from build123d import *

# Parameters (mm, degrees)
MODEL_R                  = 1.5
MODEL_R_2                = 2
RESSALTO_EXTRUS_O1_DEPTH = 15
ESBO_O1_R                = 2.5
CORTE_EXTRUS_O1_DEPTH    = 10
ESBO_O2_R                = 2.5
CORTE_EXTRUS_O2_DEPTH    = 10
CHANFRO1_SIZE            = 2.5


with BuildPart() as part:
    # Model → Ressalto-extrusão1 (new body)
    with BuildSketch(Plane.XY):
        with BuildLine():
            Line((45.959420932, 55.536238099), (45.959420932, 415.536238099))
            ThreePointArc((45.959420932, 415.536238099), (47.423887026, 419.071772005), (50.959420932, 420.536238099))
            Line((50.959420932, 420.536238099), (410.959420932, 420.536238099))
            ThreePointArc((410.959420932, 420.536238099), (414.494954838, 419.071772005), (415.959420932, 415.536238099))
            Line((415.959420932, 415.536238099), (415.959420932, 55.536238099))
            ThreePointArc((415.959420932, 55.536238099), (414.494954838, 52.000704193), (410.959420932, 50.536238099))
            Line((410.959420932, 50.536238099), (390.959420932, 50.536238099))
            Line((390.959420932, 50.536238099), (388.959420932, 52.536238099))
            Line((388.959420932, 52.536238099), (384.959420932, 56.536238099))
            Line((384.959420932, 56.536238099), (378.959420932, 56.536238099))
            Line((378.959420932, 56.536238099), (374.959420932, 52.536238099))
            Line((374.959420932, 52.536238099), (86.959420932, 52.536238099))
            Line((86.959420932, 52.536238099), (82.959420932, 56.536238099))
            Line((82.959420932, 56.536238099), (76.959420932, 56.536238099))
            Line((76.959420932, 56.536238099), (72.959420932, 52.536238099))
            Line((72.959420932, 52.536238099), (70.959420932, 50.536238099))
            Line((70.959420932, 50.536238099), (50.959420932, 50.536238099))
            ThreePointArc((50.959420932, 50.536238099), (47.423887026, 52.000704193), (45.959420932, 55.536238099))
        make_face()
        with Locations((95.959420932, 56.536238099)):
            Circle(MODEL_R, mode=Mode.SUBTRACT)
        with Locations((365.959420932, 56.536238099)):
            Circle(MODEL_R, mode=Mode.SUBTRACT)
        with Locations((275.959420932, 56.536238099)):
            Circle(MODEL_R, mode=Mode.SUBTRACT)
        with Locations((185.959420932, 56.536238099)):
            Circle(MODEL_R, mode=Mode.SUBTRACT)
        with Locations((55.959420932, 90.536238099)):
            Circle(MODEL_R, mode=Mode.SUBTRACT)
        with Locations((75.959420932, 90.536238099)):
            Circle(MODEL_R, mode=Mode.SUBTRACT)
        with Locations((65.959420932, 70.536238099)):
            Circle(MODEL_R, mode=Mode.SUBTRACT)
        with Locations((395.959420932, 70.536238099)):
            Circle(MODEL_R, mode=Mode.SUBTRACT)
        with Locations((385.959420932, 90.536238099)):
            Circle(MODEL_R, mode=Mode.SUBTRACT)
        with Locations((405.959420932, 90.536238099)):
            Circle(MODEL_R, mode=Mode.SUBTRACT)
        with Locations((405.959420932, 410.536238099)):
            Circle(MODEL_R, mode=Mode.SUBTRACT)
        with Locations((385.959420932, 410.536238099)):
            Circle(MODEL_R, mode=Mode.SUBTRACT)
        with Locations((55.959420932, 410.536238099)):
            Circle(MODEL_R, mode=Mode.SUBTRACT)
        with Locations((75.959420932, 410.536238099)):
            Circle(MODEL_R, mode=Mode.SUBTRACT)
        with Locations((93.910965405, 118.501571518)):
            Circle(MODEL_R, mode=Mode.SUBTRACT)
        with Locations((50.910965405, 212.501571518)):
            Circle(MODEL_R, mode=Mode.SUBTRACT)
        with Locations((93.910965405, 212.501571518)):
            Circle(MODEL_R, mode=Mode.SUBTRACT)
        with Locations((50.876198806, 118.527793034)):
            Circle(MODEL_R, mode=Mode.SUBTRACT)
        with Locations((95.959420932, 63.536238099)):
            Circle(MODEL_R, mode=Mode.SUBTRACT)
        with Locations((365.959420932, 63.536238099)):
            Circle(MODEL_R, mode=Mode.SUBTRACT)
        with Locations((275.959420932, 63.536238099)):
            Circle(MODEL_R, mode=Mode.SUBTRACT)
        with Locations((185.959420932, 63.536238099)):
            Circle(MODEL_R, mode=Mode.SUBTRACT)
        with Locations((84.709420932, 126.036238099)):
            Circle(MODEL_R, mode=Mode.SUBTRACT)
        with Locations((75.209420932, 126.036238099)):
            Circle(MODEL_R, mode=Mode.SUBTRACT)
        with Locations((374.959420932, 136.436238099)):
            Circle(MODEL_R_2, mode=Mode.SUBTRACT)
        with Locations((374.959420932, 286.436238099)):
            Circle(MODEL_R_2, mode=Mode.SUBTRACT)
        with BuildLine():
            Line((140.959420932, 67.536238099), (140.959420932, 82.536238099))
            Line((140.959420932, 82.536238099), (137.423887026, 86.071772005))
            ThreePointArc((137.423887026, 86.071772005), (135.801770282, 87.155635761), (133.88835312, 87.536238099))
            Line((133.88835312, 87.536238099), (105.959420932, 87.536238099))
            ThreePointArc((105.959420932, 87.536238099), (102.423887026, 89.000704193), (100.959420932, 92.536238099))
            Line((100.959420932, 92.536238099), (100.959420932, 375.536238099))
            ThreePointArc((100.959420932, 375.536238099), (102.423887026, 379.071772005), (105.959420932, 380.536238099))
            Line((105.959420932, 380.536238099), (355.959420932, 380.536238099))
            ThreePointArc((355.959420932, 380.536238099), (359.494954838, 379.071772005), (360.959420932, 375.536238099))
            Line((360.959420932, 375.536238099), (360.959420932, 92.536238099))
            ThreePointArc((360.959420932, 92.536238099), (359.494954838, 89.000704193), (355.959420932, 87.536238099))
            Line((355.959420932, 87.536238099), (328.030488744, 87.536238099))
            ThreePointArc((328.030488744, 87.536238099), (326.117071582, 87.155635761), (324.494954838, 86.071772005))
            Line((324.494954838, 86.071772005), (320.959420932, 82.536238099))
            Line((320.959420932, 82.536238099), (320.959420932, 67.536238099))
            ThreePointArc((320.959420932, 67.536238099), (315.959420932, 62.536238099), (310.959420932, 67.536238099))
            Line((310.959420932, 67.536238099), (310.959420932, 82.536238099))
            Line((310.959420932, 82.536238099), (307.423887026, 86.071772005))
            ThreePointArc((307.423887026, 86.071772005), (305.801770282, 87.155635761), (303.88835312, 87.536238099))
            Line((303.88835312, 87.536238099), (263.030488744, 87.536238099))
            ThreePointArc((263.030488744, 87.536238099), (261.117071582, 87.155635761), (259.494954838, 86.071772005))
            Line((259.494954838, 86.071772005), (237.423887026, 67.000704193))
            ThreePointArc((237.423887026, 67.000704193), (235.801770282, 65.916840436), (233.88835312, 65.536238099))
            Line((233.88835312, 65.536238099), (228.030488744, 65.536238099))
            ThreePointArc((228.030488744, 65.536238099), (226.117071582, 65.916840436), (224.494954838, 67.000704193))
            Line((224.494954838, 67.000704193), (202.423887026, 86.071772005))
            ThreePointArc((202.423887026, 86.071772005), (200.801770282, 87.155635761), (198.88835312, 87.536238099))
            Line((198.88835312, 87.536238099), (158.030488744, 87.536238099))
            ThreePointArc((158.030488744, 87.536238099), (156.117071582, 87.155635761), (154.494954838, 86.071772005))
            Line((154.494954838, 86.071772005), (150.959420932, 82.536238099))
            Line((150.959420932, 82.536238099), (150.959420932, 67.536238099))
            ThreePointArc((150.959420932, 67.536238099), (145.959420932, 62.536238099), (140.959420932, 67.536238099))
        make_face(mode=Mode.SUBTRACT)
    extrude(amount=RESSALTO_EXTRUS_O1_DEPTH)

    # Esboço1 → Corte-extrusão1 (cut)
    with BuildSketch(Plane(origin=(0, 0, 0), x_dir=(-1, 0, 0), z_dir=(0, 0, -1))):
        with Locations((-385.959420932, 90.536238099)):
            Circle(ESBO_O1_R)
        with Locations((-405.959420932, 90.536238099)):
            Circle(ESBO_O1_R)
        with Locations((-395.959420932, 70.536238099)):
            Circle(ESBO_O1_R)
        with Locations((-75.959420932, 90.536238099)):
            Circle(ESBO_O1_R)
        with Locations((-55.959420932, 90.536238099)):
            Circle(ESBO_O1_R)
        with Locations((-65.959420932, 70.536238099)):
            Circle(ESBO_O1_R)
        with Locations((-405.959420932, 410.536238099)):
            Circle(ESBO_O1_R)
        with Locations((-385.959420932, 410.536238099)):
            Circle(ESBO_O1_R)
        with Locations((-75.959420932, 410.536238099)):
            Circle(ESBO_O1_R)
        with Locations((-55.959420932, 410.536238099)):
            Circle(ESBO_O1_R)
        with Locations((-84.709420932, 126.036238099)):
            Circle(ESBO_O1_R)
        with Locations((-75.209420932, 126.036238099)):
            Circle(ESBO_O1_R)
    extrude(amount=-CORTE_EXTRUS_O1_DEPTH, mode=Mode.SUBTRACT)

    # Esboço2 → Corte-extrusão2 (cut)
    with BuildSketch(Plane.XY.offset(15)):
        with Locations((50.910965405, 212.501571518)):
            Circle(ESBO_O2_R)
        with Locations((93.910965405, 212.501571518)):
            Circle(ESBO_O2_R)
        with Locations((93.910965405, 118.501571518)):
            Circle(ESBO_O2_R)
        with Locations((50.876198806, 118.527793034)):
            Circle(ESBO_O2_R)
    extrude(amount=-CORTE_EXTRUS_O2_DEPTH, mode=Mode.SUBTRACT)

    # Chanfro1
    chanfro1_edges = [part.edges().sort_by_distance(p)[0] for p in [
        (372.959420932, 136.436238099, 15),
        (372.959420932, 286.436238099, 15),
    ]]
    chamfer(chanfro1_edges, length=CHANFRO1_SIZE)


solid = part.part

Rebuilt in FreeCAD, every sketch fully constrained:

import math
import FreeCAD as App
import Part
import Sketcher
from FreeCAD import Vector


def edges_at(feature, points):
    """Names of the edges that pass closest to the given points."""
    edges = feature.Shape.Edges
    near = lambda p: min(range(len(edges)), key=lambda i: edges[i].distToShape(Part.Vertex(*p))[0])
    return sorted({f"Edge{near(p) + 1}" for p in points})

doc = App.newDocument("Part")
body = doc.addObject("PartDesign::Body", "Body")

sketch1 = body.newObject("Sketcher::SketchObject", "Sketch")
sketch1.AttachmentSupport = (doc.getObject("XY_Plane"), [""])
sketch1.MapMode = "FlatFace"
sketch1.addGeometry(Part.LineSegment(Vector(45.959421, 415.536238, 0), Vector(45.959421, 55.536238, 0)), False)
sketch1.addGeometry(Part.ArcOfCircle(Part.Circle(Vector(50.959421, 55.536238, 0), Vector(0, 0, 1), 5), math.radians(180), math.radians(270)), False)
sketch1.addGeometry(Part.LineSegment(Vector(50.959421, 50.536238, 0), Vector(70.959421, 50.536238, 0)), False)
sketch1.addGeometry(Part.LineSegment(Vector(70.959421, 50.536238, 0), Vector(76.959421, 56.536238, 0)), False)
sketch1.addGeometry(Part.LineSegment(Vector(76.959421, 56.536238, 0), Vector(82.959421, 56.536238, 0)), False)
sketch1.addGeometry(Part.LineSegment(Vector(82.959421, 56.536238, 0), Vector(86.959421, 52.536238, 0)), False)
sketch1.addGeometry(Part.LineSegment(Vector(86.959421, 52.536238, 0), Vector(374.959421, 52.536238, 0)), False)
sketch1.addGeometry(Part.LineSegment(Vector(374.959421, 52.536238, 0), Vector(378.959421, 56.536238, 0)), False)
sketch1.addGeometry(Part.LineSegment(Vector(378.959421, 56.536238, 0), Vector(384.959421, 56.536238, 0)), False)
sketch1.addGeometry(Part.LineSegment(Vector(384.959421, 56.536238, 0), Vector(390.959421, 50.536238, 0)), False)
sketch1.addGeometry(Part.LineSegment(Vector(390.959421, 50.536238, 0), Vector(410.959421, 50.536238, 0)), False)
sketch1.addGeometry(Part.ArcOfCircle(Part.Circle(Vector(410.959421, 55.536238, 0), Vector(0, 0, 1), 5), math.radians(-90), math.radians(0)), False)
sketch1.addGeometry(Part.LineSegment(Vector(415.959421, 55.536238, 0), Vector(415.959421, 415.536238, 0)), False)
sketch1.addGeometry(Part.ArcOfCircle(Part.Circle(Vector(410.959421, 415.536238, 0), Vector(0, 0, 1), 5), math.radians(0), math.radians(90)), False)
sketch1.addGeometry(Part.LineSegment(Vector(410.959421, 420.536238, 0), Vector(50.959421, 420.536238, 0)), False)
sketch1.addGeometry(Part.ArcOfCircle(Part.Circle(Vector(50.959421, 415.536238, 0), Vector(0, 0, 1), 5), math.radians(90), math.radians(180)), False)
sketch1.addGeometry(Part.Circle(Vector(395.959421, 70.536238, 0), Vector(0, 0, 1), 1.5), False)
sketch1.addGeometry(Part.Circle(Vector(365.959421, 56.536238, 0), Vector(0, 0, 1), 1.5), False)
sketch1.addGeometry(Part.Circle(Vector(365.959421, 63.536238, 0), Vector(0, 0, 1), 1.5), False)
sketch1.addGeometry(Part.Circle(Vector(405.959421, 90.536238, 0), Vector(0, 0, 1), 1.5), False)
sketch1.addGeometry(Part.Circle(Vector(385.959421, 90.536238, 0), Vector(0, 0, 1), 1.5), False)
sketch1.addGeometry(Part.Circle(Vector(374.959421, 136.436238, 0), Vector(0, 0, 1), 2), False)
sketch1.addGeometry(Part.Circle(Vector(275.959421, 56.536238, 0), Vector(0, 0, 1), 1.5), False)
sketch1.addGeometry(Part.Circle(Vector(275.959421, 63.536238, 0), Vector(0, 0, 1), 1.5), False)
sketch1.addGeometry(Part.LineSegment(Vector(140.959421, 67.536238, 0), Vector(140.959421, 82.536238, 0)), False)
sketch1.addGeometry(Part.LineSegment(Vector(140.959421, 82.536238, 0), Vector(137.423887, 86.071772, 0)), False)
sketch1.addGeometry(Part.ArcOfCircle(Part.Circle(Vector(133.888353, 82.536238, 0), Vector(0, 0, 1), 5), math.radians(45), math.radians(90)), False)
sketch1.addGeometry(Part.LineSegment(Vector(133.888353, 87.536238, 0), Vector(105.959421, 87.536238, 0)), False)
sketch1.addGeometry(Part.ArcOfCircle(Part.Circle(Vector(105.959421, 92.536238, 0), Vector(0, 0, 1), 5), math.radians(180), math.radians(270)), False)
sketch1.addGeometry(Part.LineSegment(Vector(100.959421, 92.536238, 0), Vector(100.959421, 375.536238, 0)), False)
sketch1.addGeometry(Part.ArcOfCircle(Part.Circle(Vector(105.959421, 375.536238, 0), Vector(0, 0, 1), 5), math.radians(90), math.radians(180)), False)
sketch1.addGeometry(Part.LineSegment(Vector(105.959421, 380.536238, 0), Vector(355.959421, 380.536238, 0)), False)
sketch1.addGeometry(Part.ArcOfCircle(Part.Circle(Vector(355.959421, 375.536238, 0), Vector(0, 0, 1), 5), math.radians(0), math.radians(90)), False)
sketch1.addGeometry(Part.LineSegment(Vector(360.959421, 375.536238, 0), Vector(360.959421, 92.536238, 0)), False)
sketch1.addGeometry(Part.ArcOfCircle(Part.Circle(Vector(355.959421, 92.536238, 0), Vector(0, 0, 1), 5), math.radians(-90), math.radians(0)), False)
sketch1.addGeometry(Part.LineSegment(Vector(355.959421, 87.536238, 0), Vector(328.030489, 87.536238, 0)), False)
sketch1.addGeometry(Part.ArcOfCircle(Part.Circle(Vector(328.030489, 82.536238, 0), Vector(0, 0, 1), 5), math.radians(90), math.radians(135)), False)
sketch1.addGeometry(Part.LineSegment(Vector(324.494955, 86.071772, 0), Vector(320.959421, 82.536238, 0)), False)
sketch1.addGeometry(Part.LineSegment(Vector(320.959421, 82.536238, 0), Vector(320.959421, 67.536238, 0)), False)
sketch1.addGeometry(Part.ArcOfCircle(Part.Circle(Vector(315.959421, 67.536238, 0), Vector(0, 0, 1), 5), math.radians(180), math.radians(360)), False)
sketch1.addGeometry(Part.LineSegment(Vector(310.959421, 67.536238, 0), Vector(310.959421, 82.536238, 0)), False)
sketch1.addGeometry(Part.LineSegment(Vector(310.959421, 82.536238, 0), Vector(307.423887, 86.071772, 0)), False)
sketch1.addGeometry(Part.ArcOfCircle(Part.Circle(Vector(303.888353, 82.536238, 0), Vector(0, 0, 1), 5), math.radians(45), math.radians(90)), False)
sketch1.addGeometry(Part.LineSegment(Vector(303.888353, 87.536238, 0), Vector(263.030489, 87.536238, 0)), False)
sketch1.addGeometry(Part.ArcOfCircle(Part.Circle(Vector(263.030489, 82.536238, 0), Vector(0, 0, 1), 5), math.radians(90), math.radians(135)), False)
sketch1.addGeometry(Part.LineSegment(Vector(259.494955, 86.071772, 0), Vector(237.423887, 67.000704, 0)), False)
sketch1.addGeometry(Part.ArcOfCircle(Part.Circle(Vector(233.888353, 70.536238, 0), Vector(0, 0, 1), 5), math.radians(-90), math.radians(-45)), False)
sketch1.addGeometry(Part.LineSegment(Vector(233.888353, 65.536238, 0), Vector(228.030489, 65.536238, 0)), False)
sketch1.addGeometry(Part.ArcOfCircle(Part.Circle(Vector(228.030489, 70.536238, 0), Vector(0, 0, 1), 5), math.radians(-135), math.radians(-90)), False)
sketch1.addGeometry(Part.LineSegment(Vector(224.494955, 67.000704, 0), Vector(202.423887, 86.071772, 0)), False)
sketch1.addGeometry(Part.ArcOfCircle(Part.Circle(Vector(198.888353, 82.536238, 0), Vector(0, 0, 1), 5), math.radians(45), math.radians(90)), False)
sketch1.addGeometry(Part.LineSegment(Vector(198.888353, 87.536238, 0), Vector(158.030489, 87.536238, 0)), False)
sketch1.addGeometry(Part.ArcOfCircle(Part.Circle(Vector(158.030489, 82.536238, 0), Vector(0, 0, 1), 5), math.radians(90), math.radians(135)), False)
sketch1.addGeometry(Part.LineSegment(Vector(154.494955, 86.071772, 0), Vector(150.959421, 82.536238, 0)), False)
sketch1.addGeometry(Part.LineSegment(Vector(150.959421, 82.536238, 0), Vector(150.959421, 67.536238, 0)), False)
sketch1.addGeometry(Part.ArcOfCircle(Part.Circle(Vector(145.959421, 67.536238, 0), Vector(0, 0, 1), 5), math.radians(180), math.radians(360)), False)
sketch1.addGeometry(Part.Circle(Vector(185.959421, 56.536238, 0), Vector(0, 0, 1), 1.5), False)
sketch1.addGeometry(Part.Circle(Vector(185.959421, 63.536238, 0), Vector(0, 0, 1), 1.5), False)
sketch1.addGeometry(Part.Circle(Vector(95.959421, 56.536238, 0), Vector(0, 0, 1), 1.5), False)
sketch1.addGeometry(Part.Circle(Vector(95.959421, 63.536238, 0), Vector(0, 0, 1), 1.5), False)
sketch1.addGeometry(Part.Circle(Vector(65.959421, 70.536238, 0), Vector(0, 0, 1), 1.5), False)
sketch1.addGeometry(Part.Circle(Vector(75.959421, 90.536238, 0), Vector(0, 0, 1), 1.5), False)
sketch1.addGeometry(Part.Circle(Vector(55.959421, 90.536238, 0), Vector(0, 0, 1), 1.5), False)
sketch1.addGeometry(Part.Circle(Vector(93.910965, 118.501572, 0), Vector(0, 0, 1), 1.5), False)
sketch1.addGeometry(Part.Circle(Vector(50.876199, 118.527793, 0), Vector(0, 0, 1), 1.5), False)
sketch1.addGeometry(Part.Circle(Vector(84.709421, 126.036238, 0), Vector(0, 0, 1), 1.5), False)
sketch1.addGeometry(Part.Circle(Vector(75.209421, 126.036238, 0), Vector(0, 0, 1), 1.5), False)
sketch1.addGeometry(Part.Circle(Vector(93.910965, 212.501572, 0), Vector(0, 0, 1), 1.5), False)
sketch1.addGeometry(Part.Circle(Vector(50.910965, 212.501572, 0), Vector(0, 0, 1), 1.5), False)
sketch1.addGeometry(Part.Circle(Vector(374.959421, 286.436238, 0), Vector(0, 0, 1), 2), False)
sketch1.addGeometry(Part.Circle(Vector(405.959421, 410.536238, 0), Vector(0, 0, 1), 1.5), False)
sketch1.addGeometry(Part.Circle(Vector(385.959421, 410.536238, 0), Vector(0, 0, 1), 1.5), False)
sketch1.addGeometry(Part.Circle(Vector(75.959421, 410.536238, 0), Vector(0, 0, 1), 1.5), False)
sketch1.addGeometry(Part.Circle(Vector(55.959421, 410.536238, 0), Vector(0, 0, 1), 1.5), False)
sketch1.addConstraint(Sketcher.Constraint("Tangent", 0, 2, 1, 1))
sketch1.addConstraint(Sketcher.Constraint("Tangent", 1, 2, 2, 1))
sketch1.addConstraint(Sketcher.Constraint("Coincident", 2, 2, 3, 1))
sketch1.addConstraint(Sketcher.Constraint("Coincident", 3, 2, 4, 1))
sketch1.addConstraint(Sketcher.Constraint("Coincident", 4, 2, 5, 1))
sketch1.addConstraint(Sketcher.Constraint("Coincident", 5, 2, 6, 1))
sketch1.addConstraint(Sketcher.Constraint("Coincident", 6, 2, 7, 1))
sketch1.addConstraint(Sketcher.Constraint("Coincident", 7, 2, 8, 1))
sketch1.addConstraint(Sketcher.Constraint("Coincident", 8, 2, 9, 1))
sketch1.addConstraint(Sketcher.Constraint("Coincident", 9, 2, 10, 1))
sketch1.addConstraint(Sketcher.Constraint("Tangent", 10, 2, 11, 1))
sketch1.addConstraint(Sketcher.Constraint("Tangent", 11, 2, 12, 1))
sketch1.addConstraint(Sketcher.Constraint("Tangent", 12, 2, 13, 1))
sketch1.addConstraint(Sketcher.Constraint("Tangent", 13, 2, 14, 1))
sketch1.addConstraint(Sketcher.Constraint("Tangent", 14, 2, 15, 1))
sketch1.addConstraint(Sketcher.Constraint("Tangent", 15, 2, 0, 1))
sketch1.addConstraint(Sketcher.Constraint("Coincident", 24, 2, 25, 1))
sketch1.addConstraint(Sketcher.Constraint("Tangent", 25, 2, 26, 1))
sketch1.addConstraint(Sketcher.Constraint("Tangent", 26, 2, 27, 1))
sketch1.addConstraint(Sketcher.Constraint("Tangent", 27, 2, 28, 2))
sketch1.addConstraint(Sketcher.Constraint("Tangent", 28, 1, 29, 1))
sketch1.addConstraint(Sketcher.Constraint("Tangent", 29, 2, 30, 2))
sketch1.addConstraint(Sketcher.Constraint("Tangent", 30, 1, 31, 1))
sketch1.addConstraint(Sketcher.Constraint("Tangent", 31, 2, 32, 2))
sketch1.addConstraint(Sketcher.Constraint("Tangent", 32, 1, 33, 1))
sketch1.addConstraint(Sketcher.Constraint("Tangent", 33, 2, 34, 2))
sketch1.addConstraint(Sketcher.Constraint("Tangent", 34, 1, 35, 1))
sketch1.addConstraint(Sketcher.Constraint("Tangent", 35, 2, 36, 1))
sketch1.addConstraint(Sketcher.Constraint("Tangent", 36, 2, 37, 1))
sketch1.addConstraint(Sketcher.Constraint("Coincident", 37, 2, 38, 1))
sketch1.addConstraint(Sketcher.Constraint("Tangent", 38, 2, 39, 2))
sketch1.addConstraint(Sketcher.Constraint("Tangent", 39, 1, 40, 1))
sketch1.addConstraint(Sketcher.Constraint("Coincident", 40, 2, 41, 1))
sketch1.addConstraint(Sketcher.Constraint("Tangent", 41, 2, 42, 1))
sketch1.addConstraint(Sketcher.Constraint("Tangent", 42, 2, 43, 1))
sketch1.addConstraint(Sketcher.Constraint("Tangent", 43, 2, 44, 1))
sketch1.addConstraint(Sketcher.Constraint("Coincident", 44, 2, 45, 1))
sketch1.addConstraint(Sketcher.Constraint("Coincident", 45, 2, 46, 2))
sketch1.addConstraint(Sketcher.Constraint("Tangent", 46, 1, 47, 1))
sketch1.addConstraint(Sketcher.Constraint("Tangent", 47, 2, 48, 2))
sketch1.addConstraint(Sketcher.Constraint("Coincident", 48, 1, 49, 1))
sketch1.addConstraint(Sketcher.Constraint("Coincident", 49, 2, 50, 1))
sketch1.addConstraint(Sketcher.Constraint("Tangent", 50, 2, 51, 1))
sketch1.addConstraint(Sketcher.Constraint("Tangent", 51, 2, 52, 1))
sketch1.addConstraint(Sketcher.Constraint("Tangent", 52, 2, 53, 1))
sketch1.addConstraint(Sketcher.Constraint("Coincident", 53, 2, 54, 1))
sketch1.addConstraint(Sketcher.Constraint("Tangent", 54, 2, 55, 2))
sketch1.addConstraint(Sketcher.Constraint("Tangent", 55, 1, 24, 1))
sketch1.addConstraint(Sketcher.Constraint("Vertical", 0))
sketch1.addConstraint(Sketcher.Constraint("Horizontal", 2))
sketch1.addConstraint(Sketcher.Constraint("Horizontal", 4))
sketch1.addConstraint(Sketcher.Constraint("Horizontal", 6))
sketch1.addConstraint(Sketcher.Constraint("Horizontal", 8))
sketch1.addConstraint(Sketcher.Constraint("Horizontal", 10))
sketch1.addConstraint(Sketcher.Constraint("Vertical", 12))
sketch1.addConstraint(Sketcher.Constraint("Horizontal", 14))
sketch1.addConstraint(Sketcher.Constraint("Vertical", 24))
sketch1.addConstraint(Sketcher.Constraint("Horizontal", 27))
sketch1.addConstraint(Sketcher.Constraint("Vertical", 29))
sketch1.addConstraint(Sketcher.Constraint("Horizontal", 31))
sketch1.addConstraint(Sketcher.Constraint("Vertical", 33))
sketch1.addConstraint(Sketcher.Constraint("Horizontal", 35))
sketch1.addConstraint(Sketcher.Constraint("Vertical", 38))
sketch1.addConstraint(Sketcher.Constraint("Vertical", 40))
sketch1.addConstraint(Sketcher.Constraint("Horizontal", 43))
sketch1.addConstraint(Sketcher.Constraint("Horizontal", 47))
sketch1.addConstraint(Sketcher.Constraint("Horizontal", 51))
sketch1.addConstraint(Sketcher.Constraint("Vertical", 54))
sketch1.addConstraint(Sketcher.Constraint("Equal", 1, 11))
sketch1.addConstraint(Sketcher.Constraint("Equal", 11, 13))
sketch1.addConstraint(Sketcher.Constraint("Equal", 13, 15))
sketch1.addConstraint(Sketcher.Constraint("Equal", 16, 17))
sketch1.addConstraint(Sketcher.Constraint("Equal", 17, 18))
sketch1.addConstraint(Sketcher.Constraint("Equal", 18, 19))
sketch1.addConstraint(Sketcher.Constraint("Equal", 19, 20))
sketch1.addConstraint(Sketcher.Constraint("Equal", 20, 22))
sketch1.addConstraint(Sketcher.Constraint("Equal", 22, 23))
sketch1.addConstraint(Sketcher.Constraint("Equal", 15, 26))
sketch1.addConstraint(Sketcher.Constraint("Equal", 26, 28))
sketch1.addConstraint(Sketcher.Constraint("Equal", 28, 30))
sketch1.addConstraint(Sketcher.Constraint("Equal", 30, 32))
sketch1.addConstraint(Sketcher.Constraint("Equal", 32, 34))
sketch1.addConstraint(Sketcher.Constraint("Equal", 34, 36))
sketch1.addConstraint(Sketcher.Constraint("Equal", 36, 39))
sketch1.addConstraint(Sketcher.Constraint("Equal", 39, 42))
sketch1.addConstraint(Sketcher.Constraint("Equal", 42, 44))
sketch1.addConstraint(Sketcher.Constraint("Equal", 44, 46))
sketch1.addConstraint(Sketcher.Constraint("Equal", 46, 48))
sketch1.addConstraint(Sketcher.Constraint("Equal", 48, 50))
sketch1.addConstraint(Sketcher.Constraint("Equal", 50, 52))
sketch1.addConstraint(Sketcher.Constraint("Equal", 52, 55))
sketch1.addConstraint(Sketcher.Constraint("Equal", 23, 56))
sketch1.addConstraint(Sketcher.Constraint("Equal", 56, 57))
sketch1.addConstraint(Sketcher.Constraint("Equal", 57, 58))
sketch1.addConstraint(Sketcher.Constraint("Equal", 58, 59))
sketch1.addConstraint(Sketcher.Constraint("Equal", 59, 60))
sketch1.addConstraint(Sketcher.Constraint("Equal", 60, 61))
sketch1.addConstraint(Sketcher.Constraint("Equal", 61, 62))
sketch1.addConstraint(Sketcher.Constraint("Equal", 62, 63))
sketch1.addConstraint(Sketcher.Constraint("Equal", 63, 64))
sketch1.addConstraint(Sketcher.Constraint("Equal", 64, 65))
sketch1.addConstraint(Sketcher.Constraint("Equal", 65, 66))
sketch1.addConstraint(Sketcher.Constraint("Equal", 66, 67))
sketch1.addConstraint(Sketcher.Constraint("Equal", 67, 68))
sketch1.addConstraint(Sketcher.Constraint("Equal", 21, 69))
sketch1.addConstraint(Sketcher.Constraint("Equal", 68, 70))
sketch1.addConstraint(Sketcher.Constraint("Equal", 70, 71))
sketch1.addConstraint(Sketcher.Constraint("Equal", 71, 72))
sketch1.addConstraint(Sketcher.Constraint("Equal", 72, 73))
sketch1.addConstraint(Sketcher.Constraint("Perpendicular", 3, 5))
sketch1.addConstraint(Sketcher.Constraint("Perpendicular", 5, 7))
sketch1.addConstraint(Sketcher.Constraint("Perpendicular", 7, 9))
sketch1.addConstraint(Sketcher.Constraint("Parallel", 9, 25))
sketch1.addConstraint(Sketcher.Constraint("Perpendicular", 25, 37))
sketch1.addConstraint(Sketcher.Constraint("Perpendicular", 37, 41))
sketch1.addConstraint(Sketcher.Constraint("Perpendicular", 41, 53))
sketch1.addConstraint(Sketcher.Constraint("Horizontal", 1, 3, 11, 3))
sketch1.addConstraint(Sketcher.Constraint("Horizontal", 19, 3, 20, 3))
sketch1.addConstraint(Sketcher.Constraint("Horizontal", 17, 3, 22, 3))
sketch1.addConstraint(Sketcher.Constraint("Horizontal", 18, 3, 23, 3))
sketch1.addConstraint(Sketcher.Constraint("Horizontal", 28, 3, 34, 3))
sketch1.addConstraint(Sketcher.Constraint("Horizontal", 36, 3, 42, 3))
sketch1.addConstraint(Sketcher.Constraint("Horizontal", 16, 3, 46, 3))
sketch1.addConstraint(Sketcher.Constraint("Horizontal", 44, 3, 50, 3))
sketch1.addConstraint(Sketcher.Constraint("Horizontal", 39, 3, 55, 3))
sketch1.addConstraint(Sketcher.Constraint("Horizontal", 22, 3, 56, 3))
sketch1.addConstraint(Sketcher.Constraint("Horizontal", 23, 3, 57, 3))
sketch1.addConstraint(Sketcher.Constraint("Horizontal", 56, 3, 58, 3))
sketch1.addConstraint(Sketcher.Constraint("Horizontal", 57, 3, 59, 3))
sketch1.addConstraint(Sketcher.Constraint("Horizontal", 48, 3, 60, 3))
sketch1.addConstraint(Sketcher.Constraint("Horizontal", 20, 3, 61, 3))
sketch1.addConstraint(Sketcher.Constraint("Horizontal", 61, 3, 62, 3))
sketch1.addConstraint(Sketcher.Constraint("Horizontal", 65, 3, 66, 3))
sketch1.addConstraint(Sketcher.Constraint("Horizontal", 67, 3, 68, 3))
sketch1.addConstraint(Sketcher.Constraint("Horizontal", 70, 3, 71, 3))
sketch1.addConstraint(Sketcher.Constraint("Horizontal", 71, 3, 72, 3))
sketch1.addConstraint(Sketcher.Constraint("Horizontal", 72, 3, 73, 3))
sketch1.addConstraint(Sketcher.Constraint("Horizontal", 58, 3, 3, 2))
sketch1.addConstraint(Sketcher.Constraint("Horizontal", 4, 2, 7, 2))
sketch1.addConstraint(Sketcher.Constraint("Horizontal", 52, 3, 24, 2))
sketch1.addConstraint(Sketcher.Constraint("Horizontal", 25, 2, 36, 2))
sketch1.addConstraint(Sketcher.Constraint("Horizontal", 24, 2, 37, 2))
sketch1.addConstraint(Sketcher.Constraint("Horizontal", 37, 2, 40, 2))
sketch1.addConstraint(Sketcher.Constraint("Horizontal", 41, 2, 44, 2))
sketch1.addConstraint(Sketcher.Constraint("Horizontal", 45, 2, 48, 1))
sketch1.addConstraint(Sketcher.Constraint("Horizontal", 44, 2, 49, 2))
sketch1.addConstraint(Sketcher.Constraint("Horizontal", 40, 2, 53, 2))
sketch1.addConstraint(Sketcher.Constraint("Vertical", 17, 3, 18, 3))
sketch1.addConstraint(Sketcher.Constraint("Vertical", 22, 3, 23, 3))
sketch1.addConstraint(Sketcher.Constraint("Vertical", 56, 3, 57, 3))
sketch1.addConstraint(Sketcher.Constraint("Vertical", 58, 3, 59, 3))
sketch1.addConstraint(Sketcher.Constraint("Vertical", 63, 3, 67, 3))
sketch1.addConstraint(Sketcher.Constraint("Vertical", 21, 3, 69, 3))
sketch1.addConstraint(Sketcher.Constraint("Vertical", 19, 3, 70, 3))
sketch1.addConstraint(Sketcher.Constraint("Vertical", 20, 3, 71, 3))
sketch1.addConstraint(Sketcher.Constraint("Vertical", 61, 3, 72, 3))
sketch1.addConstraint(Sketcher.Constraint("Vertical", 62, 3, 73, 3))
sketch1.addConstraint(Sketcher.Constraint("Vertical", 69, 3, 6, 2))
sketch1.addConstraint(Sketcher.Constraint("Equal", 4, 8))
sketch1.addConstraint(Sketcher.Constraint("Equal", 2, 10))
sketch1.addConstraint(Sketcher.Constraint("Equal", 27, 35))
sketch1.addConstraint(Sketcher.Constraint("Equal", 43, 51))
sketch1.addConstraint(Sketcher.Constraint("Equal", 14, 0))
sketch1.addConstraint(Sketcher.Constraint("Equal", 45, 49))
sketch1.addConstraint(Sketcher.Constraint("Diameter", 16, 3.0))
sketch1.addConstraint(Sketcher.Constraint("Diameter", 21, 4.0))
sketch1.addConstraint(Sketcher.Constraint("Radius", 1, 5.0))
sketch1.addConstraint(Sketcher.Constraint("DistanceX", 2, 1, 2, 2, 20.0))
sketch1.addConstraint(Sketcher.Constraint("DistanceX", 4, 1, 4, 2, 6.0))
sketch1.addConstraint(Sketcher.Constraint("DistanceX", 6, 1, 6, 2, 288.0))
sketch1.addConstraint(Sketcher.Constraint("DistanceX", 14, 2, 14, 1, 360.0))
sketch1.addConstraint(Sketcher.Constraint("DistanceX", 31, 1, 31, 2, 250.0))
sketch1.addConstraint(Sketcher.Constraint("DistanceY", 24, 1, 24, 2, 15.0))
sketch1.addConstraint(Sketcher.Constraint("DistanceY", 29, 1, 29, 2, 283.0))
sketch1.addConstraint(Sketcher.Constraint("DistanceX", -1, 1, 64, 3, 50.876199))
sketch1.addConstraint(Sketcher.Constraint("Distance", 3, 8.485281))
sketch1.addConstraint(Sketcher.Constraint("Distance", 45, 29.169122))
sketch1.addConstraint(Sketcher.Constraint("DistanceX", 27, 2, 27, 1, 27.928932))
sketch1.addConstraint(Sketcher.Constraint("DistanceX", 43, 2, 43, 1, 40.857864))
sketch1.addConstraint(Sketcher.Constraint("DistanceX", 47, 2, 47, 1, 5.857864))
sketch1.addConstraint(Sketcher.Constraint("DistanceX", -1, 1, 1, 3, 50.959421))
sketch1.addConstraint(Sketcher.Constraint("DistanceY", -1, 1, 1, 3, 55.536238))
sketch1.addConstraint(Sketcher.Constraint("DistanceX", -1, 1, 16, 3, 395.959421))
sketch1.addConstraint(Sketcher.Constraint("DistanceY", -1, 1, 16, 3, 70.536238))
sketch1.addConstraint(Sketcher.Constraint("DistanceX", -1, 1, 17, 3, 365.959421))
sketch1.addConstraint(Sketcher.Constraint("DistanceY", -1, 1, 18, 3, 63.536238))
sketch1.addConstraint(Sketcher.Constraint("DistanceX", -1, 1, 19, 3, 405.959421))
sketch1.addConstraint(Sketcher.Constraint("DistanceY", -1, 1, 19, 3, 90.536238))
sketch1.addConstraint(Sketcher.Constraint("DistanceX", -1, 1, 20, 3, 385.959421))
sketch1.addConstraint(Sketcher.Constraint("DistanceY", -1, 1, 21, 3, 136.436238))
sketch1.addConstraint(Sketcher.Constraint("DistanceX", -1, 1, 22, 3, 275.959421))
sketch1.addConstraint(Sketcher.Constraint("DistanceY", -1, 1, 26, 3, 82.536238))
sketch1.addConstraint(Sketcher.Constraint("DistanceX", -1, 1, 28, 3, 105.959421))
sketch1.addConstraint(Sketcher.Constraint("DistanceX", -1, 1, 56, 3, 185.959421))
sketch1.addConstraint(Sketcher.Constraint("DistanceX", -1, 1, 58, 3, 95.959421))
sketch1.addConstraint(Sketcher.Constraint("DistanceX", -1, 1, 60, 3, 65.959421))
sketch1.addConstraint(Sketcher.Constraint("DistanceX", -1, 1, 61, 3, 75.959421))
sketch1.addConstraint(Sketcher.Constraint("DistanceX", -1, 1, 62, 3, 55.959421))
sketch1.addConstraint(Sketcher.Constraint("DistanceY", -1, 1, 63, 3, 118.501572))
sketch1.addConstraint(Sketcher.Constraint("DistanceX", -1, 1, 65, 3, 84.709421))
sketch1.addConstraint(Sketcher.Constraint("DistanceY", -1, 1, 65, 3, 126.036238))
sketch1.addConstraint(Sketcher.Constraint("DistanceX", -1, 1, 66, 3, 75.209421))
sketch1.addConstraint(Sketcher.Constraint("DistanceY", -1, 1, 67, 3, 212.501572))
sketch1.addConstraint(Sketcher.Constraint("DistanceY", -1, 1, 69, 3, 286.436238))
sketch1.addConstraint(Sketcher.Constraint("DistanceY", -1, 1, 70, 3, 410.536238))
sketch1.addConstraint(Sketcher.Constraint("DistanceX", -1, 1, 63, 3, 93.910965))
sketch1.addConstraint(Sketcher.Constraint("DistanceY", -1, 1, 64, 3, 118.527793))
sketch1.addConstraint(Sketcher.Constraint("DistanceX", -1, 1, 68, 3, 50.910965))
pad1 = body.newObject("PartDesign::Pad", "Pad")
pad1.Profile = sketch1
pad1.Length = 15

sketch2 = body.newObject("Sketcher::SketchObject", "Sketch001")
sketch2.AttachmentSupport = (doc.getObject("XY_Plane"), [""])
sketch2.MapMode = "FlatFace"
sketch2.addGeometry(Part.Circle(Vector(385.959421, 90.536238, 0), Vector(0, 0, 1), 2.5), False)
sketch2.addGeometry(Part.Circle(Vector(405.959421, 90.536238, 0), Vector(0, 0, 1), 2.5), False)
sketch2.addGeometry(Part.Circle(Vector(395.959421, 70.536238, 0), Vector(0, 0, 1), 2.5), False)
sketch2.addGeometry(Part.Circle(Vector(75.959421, 90.536238, 0), Vector(0, 0, 1), 2.5), False)
sketch2.addGeometry(Part.Circle(Vector(55.959421, 90.536238, 0), Vector(0, 0, 1), 2.5), False)
sketch2.addGeometry(Part.Circle(Vector(65.959421, 70.536238, 0), Vector(0, 0, 1), 2.5), False)
sketch2.addGeometry(Part.Circle(Vector(405.959421, 410.536238, 0), Vector(0, 0, 1), 2.5), False)
sketch2.addGeometry(Part.Circle(Vector(385.959421, 410.536238, 0), Vector(0, 0, 1), 2.5), False)
sketch2.addGeometry(Part.Circle(Vector(75.959421, 410.536238, 0), Vector(0, 0, 1), 2.5), False)
sketch2.addGeometry(Part.Circle(Vector(55.959421, 410.536238, 0), Vector(0, 0, 1), 2.5), False)
sketch2.addGeometry(Part.Circle(Vector(84.709421, 126.036238, 0), Vector(0, 0, 1), 2.5), False)
sketch2.addGeometry(Part.Circle(Vector(75.209421, 126.036238, 0), Vector(0, 0, 1), 2.5), False)
sketch2.addConstraint(Sketcher.Constraint("Equal", 0, 1))
sketch2.addConstraint(Sketcher.Constraint("Equal", 1, 2))
sketch2.addConstraint(Sketcher.Constraint("Equal", 2, 3))
sketch2.addConstraint(Sketcher.Constraint("Equal", 3, 4))
sketch2.addConstraint(Sketcher.Constraint("Equal", 4, 5))
sketch2.addConstraint(Sketcher.Constraint("Equal", 5, 6))
sketch2.addConstraint(Sketcher.Constraint("Equal", 6, 7))
sketch2.addConstraint(Sketcher.Constraint("Equal", 7, 8))
sketch2.addConstraint(Sketcher.Constraint("Equal", 8, 9))
sketch2.addConstraint(Sketcher.Constraint("Equal", 9, 10))
sketch2.addConstraint(Sketcher.Constraint("Equal", 10, 11))
sketch2.addConstraint(Sketcher.Constraint("Horizontal", 0, 3, 1, 3))
sketch2.addConstraint(Sketcher.Constraint("Horizontal", 1, 3, 3, 3))
sketch2.addConstraint(Sketcher.Constraint("Horizontal", 3, 3, 4, 3))
sketch2.addConstraint(Sketcher.Constraint("Horizontal", 2, 3, 5, 3))
sketch2.addConstraint(Sketcher.Constraint("Horizontal", 6, 3, 7, 3))
sketch2.addConstraint(Sketcher.Constraint("Horizontal", 7, 3, 8, 3))
sketch2.addConstraint(Sketcher.Constraint("Horizontal", 8, 3, 9, 3))
sketch2.addConstraint(Sketcher.Constraint("Horizontal", 10, 3, 11, 3))
sketch2.addConstraint(Sketcher.Constraint("Vertical", 1, 3, 6, 3))
sketch2.addConstraint(Sketcher.Constraint("Vertical", 0, 3, 7, 3))
sketch2.addConstraint(Sketcher.Constraint("Vertical", 3, 3, 8, 3))
sketch2.addConstraint(Sketcher.Constraint("Vertical", 4, 3, 9, 3))
sketch2.addConstraint(Sketcher.Constraint("Diameter", 0, 5.0))
sketch2.addConstraint(Sketcher.Constraint("DistanceX", 0, 3, 1, 3, 20.0))
sketch2.addConstraint(Sketcher.Constraint("DistanceX", 0, 3, 2, 3, 10.0))
sketch2.addConstraint(Sketcher.Constraint("DistanceY", 2, 3, 0, 3, 20.0))
sketch2.addConstraint(Sketcher.Constraint("DistanceX", 3, 3, 0, 3, 310.0))
sketch2.addConstraint(Sketcher.Constraint("DistanceX", 4, 3, 3, 3, 20.0))
sketch2.addConstraint(Sketcher.Constraint("DistanceX", 5, 3, 3, 3, 10.0))
sketch2.addConstraint(Sketcher.Constraint("DistanceY", 1, 3, 6, 3, 320.0))
sketch2.addConstraint(Sketcher.Constraint("DistanceY", 3, 3, 10, 3, 35.5))
sketch2.addConstraint(Sketcher.Constraint("DistanceX", 11, 3, 10, 3, 9.5))
sketch2.addConstraint(Sketcher.Constraint("DistanceX", 3, 3, 10, 3, 8.75))
sketch2.addConstraint(Sketcher.Constraint("DistanceX", -1, 1, 0, 3, 385.959421))
sketch2.addConstraint(Sketcher.Constraint("DistanceY", -1, 1, 0, 3, 90.536238))
pocket1 = body.newObject("PartDesign::Pocket", "Pocket")
pocket1.Profile = sketch2
pocket1.Length = 10
pocket1.Reversed = True

sketch3 = body.newObject("Sketcher::SketchObject", "Sketch002")
sketch3.AttachmentSupport = (doc.getObject("XY_Plane"), [""])
sketch3.MapMode = "FlatFace"
sketch3.AttachmentOffset = App.Placement(Vector(0, 0, 15), App.Rotation())
sketch3.addGeometry(Part.Circle(Vector(50.910965, 212.501572, 0), Vector(0, 0, 1), 2.5), False)
sketch3.addGeometry(Part.Circle(Vector(93.910965, 212.501572, 0), Vector(0, 0, 1), 2.5), False)
sketch3.addGeometry(Part.Circle(Vector(93.910965, 118.501572, 0), Vector(0, 0, 1), 2.5), False)
sketch3.addGeometry(Part.Circle(Vector(50.876199, 118.527793, 0), Vector(0, 0, 1), 2.5), False)
sketch3.addConstraint(Sketcher.Constraint("Equal", 0, 1))
sketch3.addConstraint(Sketcher.Constraint("Equal", 1, 2))
sketch3.addConstraint(Sketcher.Constraint("Equal", 2, 3))
sketch3.addConstraint(Sketcher.Constraint("Horizontal", 0, 3, 1, 3))
sketch3.addConstraint(Sketcher.Constraint("Vertical", 1, 3, 2, 3))
sketch3.addConstraint(Sketcher.Constraint("Diameter", 0, 5.0))
sketch3.addConstraint(Sketcher.Constraint("DistanceX", 0, 3, 1, 3, 43.0))
sketch3.addConstraint(Sketcher.Constraint("DistanceY", 2, 3, 1, 3, 94.0))
sketch3.addConstraint(Sketcher.Constraint("DistanceX", -1, 1, 3, 3, 50.876199))
sketch3.addConstraint(Sketcher.Constraint("DistanceY", -1, 1, 0, 3, 212.501572))
sketch3.addConstraint(Sketcher.Constraint("DistanceY", 2, 3, 3, 3, 0.026222))
sketch3.addConstraint(Sketcher.Constraint("DistanceX", -1, 1, 0, 3, 50.910965))
pocket2 = body.newObject("PartDesign::Pocket", "Pocket001")
pocket2.Profile = sketch3
pocket2.Length = 10
doc.recompute()

chamfer = body.newObject("PartDesign::Chamfer", "Chamfer")
chamfer.Base = (pocket2, edges_at(pocket2, [(372.959, 136.436, 15), (372.959, 286.436, 15)]))
chamfer.Size = 2.5

doc.recompute()
